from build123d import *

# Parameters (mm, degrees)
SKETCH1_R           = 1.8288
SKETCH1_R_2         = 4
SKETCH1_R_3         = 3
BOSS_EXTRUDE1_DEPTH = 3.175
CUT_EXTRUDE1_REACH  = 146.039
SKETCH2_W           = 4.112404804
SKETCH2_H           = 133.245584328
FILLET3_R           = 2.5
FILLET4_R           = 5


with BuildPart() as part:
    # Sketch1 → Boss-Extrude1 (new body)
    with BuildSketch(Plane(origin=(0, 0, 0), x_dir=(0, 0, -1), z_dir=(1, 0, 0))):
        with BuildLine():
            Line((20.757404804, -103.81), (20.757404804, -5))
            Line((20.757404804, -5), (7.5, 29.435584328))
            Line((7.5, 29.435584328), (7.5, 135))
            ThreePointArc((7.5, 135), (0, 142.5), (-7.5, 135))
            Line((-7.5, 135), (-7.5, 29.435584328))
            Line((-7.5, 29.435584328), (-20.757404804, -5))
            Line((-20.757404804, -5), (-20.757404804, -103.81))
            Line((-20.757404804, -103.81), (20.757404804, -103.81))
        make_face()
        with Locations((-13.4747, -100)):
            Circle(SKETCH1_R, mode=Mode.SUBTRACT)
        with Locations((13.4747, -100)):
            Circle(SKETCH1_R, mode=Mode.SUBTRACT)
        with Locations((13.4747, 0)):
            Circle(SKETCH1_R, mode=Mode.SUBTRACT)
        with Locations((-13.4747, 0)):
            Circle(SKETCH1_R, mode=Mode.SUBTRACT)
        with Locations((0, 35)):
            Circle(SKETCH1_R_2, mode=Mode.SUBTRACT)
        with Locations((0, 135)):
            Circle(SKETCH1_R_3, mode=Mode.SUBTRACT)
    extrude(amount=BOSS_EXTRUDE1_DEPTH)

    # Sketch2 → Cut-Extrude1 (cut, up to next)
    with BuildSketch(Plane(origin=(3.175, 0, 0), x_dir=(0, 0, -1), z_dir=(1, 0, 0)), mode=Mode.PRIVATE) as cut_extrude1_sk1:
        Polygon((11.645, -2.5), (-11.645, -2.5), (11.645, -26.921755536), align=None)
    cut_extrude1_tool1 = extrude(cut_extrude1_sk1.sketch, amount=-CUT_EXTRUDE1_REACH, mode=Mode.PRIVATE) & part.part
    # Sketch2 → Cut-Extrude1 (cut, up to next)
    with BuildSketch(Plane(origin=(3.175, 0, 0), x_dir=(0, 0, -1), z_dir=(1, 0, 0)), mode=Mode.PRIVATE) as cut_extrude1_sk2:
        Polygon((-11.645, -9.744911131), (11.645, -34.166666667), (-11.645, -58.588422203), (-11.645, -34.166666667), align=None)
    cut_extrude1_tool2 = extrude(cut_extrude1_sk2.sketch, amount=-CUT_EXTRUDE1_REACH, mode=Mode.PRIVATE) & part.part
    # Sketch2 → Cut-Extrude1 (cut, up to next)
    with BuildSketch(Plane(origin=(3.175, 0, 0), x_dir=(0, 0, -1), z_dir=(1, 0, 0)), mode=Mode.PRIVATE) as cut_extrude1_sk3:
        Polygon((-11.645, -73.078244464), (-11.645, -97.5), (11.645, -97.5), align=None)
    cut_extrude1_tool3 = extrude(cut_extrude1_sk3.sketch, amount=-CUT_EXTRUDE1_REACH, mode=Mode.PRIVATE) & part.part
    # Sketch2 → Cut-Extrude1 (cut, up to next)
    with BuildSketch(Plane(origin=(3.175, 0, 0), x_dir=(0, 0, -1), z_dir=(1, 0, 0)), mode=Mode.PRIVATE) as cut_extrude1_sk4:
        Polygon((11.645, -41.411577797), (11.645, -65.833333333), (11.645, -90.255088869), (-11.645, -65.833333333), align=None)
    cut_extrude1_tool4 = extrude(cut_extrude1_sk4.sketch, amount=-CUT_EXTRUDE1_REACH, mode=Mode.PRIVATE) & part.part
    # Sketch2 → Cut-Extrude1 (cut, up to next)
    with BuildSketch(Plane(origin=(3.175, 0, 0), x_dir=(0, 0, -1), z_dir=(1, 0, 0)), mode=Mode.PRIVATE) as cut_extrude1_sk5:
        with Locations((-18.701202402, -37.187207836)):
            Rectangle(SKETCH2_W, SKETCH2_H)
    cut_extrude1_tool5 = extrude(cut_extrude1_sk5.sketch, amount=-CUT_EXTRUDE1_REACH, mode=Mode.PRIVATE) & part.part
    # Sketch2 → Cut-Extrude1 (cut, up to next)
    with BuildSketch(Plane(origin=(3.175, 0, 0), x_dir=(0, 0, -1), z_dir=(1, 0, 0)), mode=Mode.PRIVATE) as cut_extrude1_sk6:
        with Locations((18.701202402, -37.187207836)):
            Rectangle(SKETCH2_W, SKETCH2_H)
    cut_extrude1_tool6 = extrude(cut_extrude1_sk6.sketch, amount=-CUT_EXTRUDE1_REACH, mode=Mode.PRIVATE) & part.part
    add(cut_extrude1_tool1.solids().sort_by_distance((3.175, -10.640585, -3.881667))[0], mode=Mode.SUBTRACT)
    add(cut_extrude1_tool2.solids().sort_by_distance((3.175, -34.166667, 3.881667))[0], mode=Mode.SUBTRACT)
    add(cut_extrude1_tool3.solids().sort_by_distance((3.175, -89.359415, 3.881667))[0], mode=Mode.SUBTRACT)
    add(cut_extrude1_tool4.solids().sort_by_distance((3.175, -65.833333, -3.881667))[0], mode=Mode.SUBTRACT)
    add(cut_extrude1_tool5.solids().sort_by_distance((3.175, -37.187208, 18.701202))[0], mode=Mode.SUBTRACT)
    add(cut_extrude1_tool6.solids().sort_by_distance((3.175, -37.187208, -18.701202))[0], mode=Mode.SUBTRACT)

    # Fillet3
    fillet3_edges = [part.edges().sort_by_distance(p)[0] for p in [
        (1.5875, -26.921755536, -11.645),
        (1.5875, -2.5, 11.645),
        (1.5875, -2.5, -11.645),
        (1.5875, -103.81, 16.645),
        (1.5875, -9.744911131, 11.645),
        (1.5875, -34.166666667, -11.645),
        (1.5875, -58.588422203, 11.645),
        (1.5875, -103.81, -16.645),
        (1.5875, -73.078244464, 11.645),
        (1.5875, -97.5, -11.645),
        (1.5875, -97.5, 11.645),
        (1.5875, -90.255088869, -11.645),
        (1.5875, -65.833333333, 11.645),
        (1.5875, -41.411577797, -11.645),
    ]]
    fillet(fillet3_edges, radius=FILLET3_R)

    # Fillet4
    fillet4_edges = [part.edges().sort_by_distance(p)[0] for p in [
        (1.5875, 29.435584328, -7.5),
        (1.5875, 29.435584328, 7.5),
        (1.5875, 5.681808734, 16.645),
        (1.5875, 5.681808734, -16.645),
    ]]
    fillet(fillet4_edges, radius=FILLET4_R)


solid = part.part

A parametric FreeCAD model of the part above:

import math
import FreeCAD as App
import Part
import Sketcher

V = App.Vector


def edges_at(feature, points):
    """Names of the edges that pass closest to the given points."""
    edges = feature.Shape.Edges
    near = lambda p: min(range(len(edges)), key=lambda i: edges[i].distToShape(Part.Vertex(*p))[0])
    return sorted({f"Edge{near(p) + 1}" for p in points})


def add_polygon(sketch, points):
    """Adds a closed chain of lines whose ends are joined by coincident constraints."""
    first, n = sketch.GeometryCount, len(points)
    for a, b in zip(points, points[1:] + points[:1]):
        sketch.addGeometry(Part.LineSegment(App.Vector(*a, 0), App.Vector(*b, 0)), False)
    for i in range(n):
        sketch.addConstraint(Sketcher.Constraint("Coincident", first + i, 2, first + (i + 1) % n, 1))

doc = App.newDocument("Part")
body = doc.addObject("PartDesign::Body", "Body")

sketch1 = doc.addObject("Sketcher::SketchObject", "Sketch")
body.addObject(sketch1)
sketch1.AttachmentSupport = (doc.YZ_Plane, [""])
sketch1.MapMode = "FlatFace"
sketch1.addGeometry([
    Part.LineSegment(V(-103.8, -20.8, 0), V(-5, -20.8, 0)),
    Part.LineSegment(V(-5, -20.8, 0), V(29.4, -7.5, 0)),
    Part.LineSegment(V(29.4, -7.5, 0), V(135, -7.5, 0)),
    Part.ArcOfCircle(Part.Circle(V(135, 0, 0), V(0, 0, 1), 7.5), math.radians(-90), math.radians(90)),
    Part.LineSegment(V(135, 7.5, 0), V(29.4, 7.5, 0)),
    Part.LineSegment(V(29.4, 7.5, 0), V(-5, 20.8, 0)),
    Part.LineSegment(V(-5, 20.8, 0), V(-103.8, 20.8, 0)),
    Part.LineSegment(V(-103.8, 20.8, 0), V(-103.8, -20.8, 0)),
    Part.Circle(V(-100, 13.5, 0), V(0, 0, 1), 1.8),
    Part.Circle(V(0, 13.5, 0), V(0, 0, 1), 1.8),
    Part.Circle(V(-100, -13.5, 0), V(0, 0, 1), 1.8),
    Part.Circle(V(0, -13.5, 0), V(0, 0, 1), 1.8),
    Part.Circle(V(35, 0, 0), V(0, 0, 1), 4),
    Part.Circle(V(135, 0, 0), V(0, 0, 1), 3),
], False)
sketch1.addConstraint([
    Sketcher.Constraint("Coincident", 0, 2, 1, 1),
    Sketcher.Constraint("Coincident", 1, 2, 2, 1),
    Sketcher.Constraint("Tangent", 2, 2, 3, 1),
    Sketcher.Constraint("Tangent", 3, 2, 4, 1),
    Sketcher.Constraint("Coincident", 4, 2, 5, 1),
    Sketcher.Constraint("Coincident", 5, 2, 6, 1),
    Sketcher.Constraint("Coincident", 6, 2, 7, 1),
    Sketcher.Constraint("Coincident", 7, 2, 0, 1),
    Sketcher.Constraint("Horizontal", 0),
    Sketcher.Constraint("Horizontal", 2),
    Sketcher.Constraint("Horizontal", 4),
    Sketcher.Constraint("Horizontal", 6),
    Sketcher.Constraint("Vertical", 7),
    Sketcher.Constraint("Coincident", 13, 3, 3, 3),
    Sketcher.Constraint("Equal", 8, 9),
    Sketcher.Constraint("Equal", 9, 10),
    Sketcher.Constraint("Equal", 10, 11),
    Sketcher.Constraint("Symmetric", 9, 3, 11, 3, -1, 1),
    Sketcher.Constraint("Symmetric", 8, 3, 10, 3, -1),
    Sketcher.Constraint("Symmetric", 1, 2, 4, 2, -1),
    Sketcher.Constraint("Symmetric", 0, 2, 5, 2, -1),
    Sketcher.Constraint("PointOnObject", 9, 3, -2),
    Sketcher.Constraint("PointOnObject", 12, 3, -1),
    Sketcher.Constraint("Horizontal", 8, 3, 9, 3),
    Sketcher.Constraint("Diameter", 12, 8.0),
    Sketcher.Constraint("Diameter", 13, 6.0),
    Sketcher.Constraint("Radius", 3, 7.5),
    Sketcher.Constraint("DistanceX", -1, 1, 3, 3, 135.0),
    Sketcher.Constraint("DistanceX", 8, 3, -1, 1, 100.0),
    Sketcher.Constraint("DistanceX", -1, 1, 12, 3, 35.0),
    Sketcher.Constraint("DistanceX", 0, 2, -1, 1, 5.0),
    Sketcher.Constraint("Diameter", 8, 3.6576),
    Sketcher.Constraint("DistanceX", 0, 1, 0, 2, 98.81),
    Sketcher.Constraint("DistanceY", 7, 2, 7, 1, 41.51481),
    Sketcher.Constraint("DistanceY", -1, 1, 8, 3, 13.4747),
    Sketcher.Constraint("DistanceX", 2, 1, 2, 2, 105.564416),
])
pad1 = doc.addObject("PartDesign::Pad", "Pad")
body.addObject(pad1)
pad1.Profile = sketch1
pad1.Length = 3.175

sketch2 = doc.addObject("Sketcher::SketchObject", "Sketch001")
body.addObject(sketch2)
sketch2.AttachmentSupport = (doc.YZ_Plane, [""])
sketch2.MapMode = "FlatFace"
sketch2.AttachmentOffset = App.Placement(V(0, 0, 3.175), App.Rotation())
add_polygon(sketch2, [(-2, -12), (-2, 12), (-27, -12)])
sketch2.addConstraint([
    Sketcher.Constraint("Vertical", 0),
    Sketcher.Constraint("Horizontal", 2),
    Sketcher.Constraint("DistanceY", 0, 1, 0, 2, 23.29),
    Sketcher.Constraint("DistanceX", 0, 2, -1, 1, 2.5),
    Sketcher.Constraint("DistanceY", -1, 1, 0, 2, 11.645),
    Sketcher.Constraint("DistanceX", 2, 1, 2, 2, 24.421756),
])
pocket1 = doc.addObject("PartDesign::Pocket", "Pocket")
body.addObject(pocket1)
pocket1.Profile = sketch2
pocket1.Type = "UpToFirst"

sketch3 = doc.addObject("Sketcher::SketchObject", "Sketch002")
body.addObject(sketch3)
sketch3.AttachmentSupport = (doc.YZ_Plane, [""])
sketch3.MapMode = "FlatFace"
sketch3.AttachmentOffset = App.Placement(V(0, 0, 3.175), App.Rotation())
add_polygon(sketch3, [(-34, -12), (-10, 12), (-59, 12)])
sketch3.addConstraint([
    Sketcher.Constraint("Horizontal", 1),
    Sketcher.Constraint("Equal", 0, 2),
    Sketcher.Constraint("DistanceY", 2, 2, 0, 2, 23.29),
    Sketcher.Constraint("DistanceY", -1, 1, 0, 2, 11.645),
    Sketcher.Constraint("DistanceX", 1, 2, 1, 1, 48.843511),
    Sketcher.Constraint("DistanceX", 0, 2, -1, 1, 9.744911),
])
pocket2 = doc.addObject("PartDesign::Pocket", "Pocket001")
body.addObject(pocket2)
pocket2.Profile = sketch3
pocket2.Type = "UpToFirst"

sketch4 = doc.addObject("Sketcher::SketchObject", "Sketch003")
body.addObject(sketch4)
sketch4.AttachmentSupport = (doc.YZ_Plane, [""])
sketch4.MapMode = "FlatFace"
sketch4.AttachmentOffset = App.Placement(V(0, 0, 3.175), App.Rotation())
add_polygon(sketch4, [(-73, 12), (-98, 12), (-98, -12)])
sketch4.addConstraint([
    Sketcher.Constraint("Horizontal", 0),
    Sketcher.Constraint("Vertical", 1),
    Sketcher.Constraint("DistanceY", 1, 2, 1, 1, 23.29),
    Sketcher.Constraint("DistanceX", 0, 2, -1, 1, 97.5),
    Sketcher.Constraint("DistanceY", -1, 1, 0, 2, 11.645),
    Sketcher.Constraint("DistanceX", 0, 2, 0, 1, 24.421756),
])
pocket3 = doc.addObject("PartDesign::Pocket", "Pocket002")
body.addObject(pocket3)
pocket3.Profile = sketch4
pocket3.Type = "UpToFirst"

sketch5 = doc.addObject("Sketcher::SketchObject", "Sketch004")
body.addObject(sketch5)
sketch5.AttachmentSupport = (doc.YZ_Plane, [""])
sketch5.MapMode = "FlatFace"
sketch5.AttachmentOffset = App.Placement(V(0, 0, 3.175), App.Rotation())
add_polygon(sketch5, [(-90, -12), (-41, -12), (-66, 12)])
sketch5.addConstraint([
    Sketcher.Constraint("Horizontal", 0),
    Sketcher.Constraint("Equal", 1, 2),
    Sketcher.Constraint("DistanceY", 0, 2, 1, 2, 23.29),
    Sketcher.Constraint("DistanceY", 0, 2, -1, 1, 11.645),
    Sketcher.Constraint("DistanceX", 0, 1, 0, 2, 48.843511),
    Sketcher.Constraint("DistanceX", 2, 2, -1, 1, 90.255089),
])
pocket4 = doc.addObject("PartDesign::Pocket", "Pocket003")
body.addObject(pocket4)
pocket4.Profile = sketch5
pocket4.Type = "UpToFirst"

sketch6 = doc.addObject("Sketcher::SketchObject", "Sketch005")
body.addObject(sketch6)
sketch6.AttachmentSupport = (doc.YZ_Plane, [""])
sketch6.MapMode = "FlatFace"
sketch6.AttachmentOffset = App.Placement(V(0, 0, 3.175), App.Rotation())
add_polygon(sketch6, [(29.4, 20.8), (-103.8, 20.8), (-103.8, 16.6), (29.4, 16.6)])
sketch6.addConstraint([
    Sketcher.Constraint("Horizontal", 0),
    Sketcher.Constraint("Vertical", 1),
    Sketcher.Constraint("Horizontal", 2),
    Sketcher.Constraint("Vertical", 3),
    Sketcher.Constraint("DistanceX", 0, 2, -1, 1, 103.81),
    Sketcher.Constraint("DistanceY", -1, 1, 1, 2, 16.645),
    Sketcher.Constraint("DistanceX", 0, 2, 0, 1, 133.245584),
    Sketcher.Constraint("DistanceY", 1, 2, 1, 1, 4.112405),
])
pocket5 = doc.addObject("PartDesign::Pocket", "Pocket004")
body.addObject(pocket5)
pocket5.Profile = sketch6
pocket5.Type = "UpToFirst"

sketch7 = doc.addObject("Sketcher::SketchObject", "Sketch006")
body.addObject(sketch7)
sketch7.AttachmentSupport = (doc.YZ_Plane, [""])
sketch7.MapMode = "FlatFace"
sketch7.AttachmentOffset = App.Placement(V(0, 0, 3.175), App.Rotation())
add_polygon(sketch7, [(29.4, -16.6), (-103.8, -16.6), (-103.8, -20.8), (29.4, -20.8)])
sketch7.addConstraint([
    Sketcher.Constraint("Horizontal", 0),
    Sketcher.Constraint("Vertical", 1),
    Sketcher.Constraint("Horizontal", 2),
    Sketcher.Constraint("Vertical", 3),
    Sketcher.Constraint("DistanceX", 0, 2, -1, 1, 103.81),
    Sketcher.Constraint("DistanceY", 0, 2, -1, 1, 16.645),
    Sketcher.Constraint("DistanceX", 0, 2, 0, 1, 133.245584),
    Sketcher.Constraint("DistanceY", 1, 2, 1, 1, 4.112405),
])
pocket6 = doc.addObject("PartDesign::Pocket", "Pocket005")
body.addObject(pocket6)
pocket6.Profile = sketch7
pocket6.Type = "UpToFirst"
doc.recompute()

fillet = doc.addObject("PartDesign::Fillet", "Fillet")
body.addObject(fillet)
fillet.Base = (pocket6, edges_at(pocket6, [
    (1.587, -26.922, -11.645),
    (1.587, -2.5, 11.645),
    (1.587, -2.5, -11.645),
    (1.587, -103.81, 16.645),
    (1.587, -9.745, 11.645),
    (1.587, -34.167, -11.645),
    (1.587, -58.588, 11.645),
    (1.587, -103.81, -16.645),
    (1.587, -73.078, 11.645),
    (1.587, -97.5, -11.645),
    (1.587, -97.5, 11.645),
    (1.587, -90.255, -11.645),
    (1.587, -65.833, 11.645),
    (1.587, -41.412, -11.645),
]))
fillet.Radius = 2.5
doc.recompute()

fillet2 = doc.addObject("PartDesign::Fillet", "Fillet001")
body.addObject(fillet2)
fillet2.Base = (fillet, edges_at(fillet, [
    (1.587, 29.436, -7.5),
    (1.587, 29.436, 7.5),
    (1.587, 5.682, 16.645),
    (1.587, 5.682, -16.645),
]))
fillet2.Radius = 5

doc.recompute()
